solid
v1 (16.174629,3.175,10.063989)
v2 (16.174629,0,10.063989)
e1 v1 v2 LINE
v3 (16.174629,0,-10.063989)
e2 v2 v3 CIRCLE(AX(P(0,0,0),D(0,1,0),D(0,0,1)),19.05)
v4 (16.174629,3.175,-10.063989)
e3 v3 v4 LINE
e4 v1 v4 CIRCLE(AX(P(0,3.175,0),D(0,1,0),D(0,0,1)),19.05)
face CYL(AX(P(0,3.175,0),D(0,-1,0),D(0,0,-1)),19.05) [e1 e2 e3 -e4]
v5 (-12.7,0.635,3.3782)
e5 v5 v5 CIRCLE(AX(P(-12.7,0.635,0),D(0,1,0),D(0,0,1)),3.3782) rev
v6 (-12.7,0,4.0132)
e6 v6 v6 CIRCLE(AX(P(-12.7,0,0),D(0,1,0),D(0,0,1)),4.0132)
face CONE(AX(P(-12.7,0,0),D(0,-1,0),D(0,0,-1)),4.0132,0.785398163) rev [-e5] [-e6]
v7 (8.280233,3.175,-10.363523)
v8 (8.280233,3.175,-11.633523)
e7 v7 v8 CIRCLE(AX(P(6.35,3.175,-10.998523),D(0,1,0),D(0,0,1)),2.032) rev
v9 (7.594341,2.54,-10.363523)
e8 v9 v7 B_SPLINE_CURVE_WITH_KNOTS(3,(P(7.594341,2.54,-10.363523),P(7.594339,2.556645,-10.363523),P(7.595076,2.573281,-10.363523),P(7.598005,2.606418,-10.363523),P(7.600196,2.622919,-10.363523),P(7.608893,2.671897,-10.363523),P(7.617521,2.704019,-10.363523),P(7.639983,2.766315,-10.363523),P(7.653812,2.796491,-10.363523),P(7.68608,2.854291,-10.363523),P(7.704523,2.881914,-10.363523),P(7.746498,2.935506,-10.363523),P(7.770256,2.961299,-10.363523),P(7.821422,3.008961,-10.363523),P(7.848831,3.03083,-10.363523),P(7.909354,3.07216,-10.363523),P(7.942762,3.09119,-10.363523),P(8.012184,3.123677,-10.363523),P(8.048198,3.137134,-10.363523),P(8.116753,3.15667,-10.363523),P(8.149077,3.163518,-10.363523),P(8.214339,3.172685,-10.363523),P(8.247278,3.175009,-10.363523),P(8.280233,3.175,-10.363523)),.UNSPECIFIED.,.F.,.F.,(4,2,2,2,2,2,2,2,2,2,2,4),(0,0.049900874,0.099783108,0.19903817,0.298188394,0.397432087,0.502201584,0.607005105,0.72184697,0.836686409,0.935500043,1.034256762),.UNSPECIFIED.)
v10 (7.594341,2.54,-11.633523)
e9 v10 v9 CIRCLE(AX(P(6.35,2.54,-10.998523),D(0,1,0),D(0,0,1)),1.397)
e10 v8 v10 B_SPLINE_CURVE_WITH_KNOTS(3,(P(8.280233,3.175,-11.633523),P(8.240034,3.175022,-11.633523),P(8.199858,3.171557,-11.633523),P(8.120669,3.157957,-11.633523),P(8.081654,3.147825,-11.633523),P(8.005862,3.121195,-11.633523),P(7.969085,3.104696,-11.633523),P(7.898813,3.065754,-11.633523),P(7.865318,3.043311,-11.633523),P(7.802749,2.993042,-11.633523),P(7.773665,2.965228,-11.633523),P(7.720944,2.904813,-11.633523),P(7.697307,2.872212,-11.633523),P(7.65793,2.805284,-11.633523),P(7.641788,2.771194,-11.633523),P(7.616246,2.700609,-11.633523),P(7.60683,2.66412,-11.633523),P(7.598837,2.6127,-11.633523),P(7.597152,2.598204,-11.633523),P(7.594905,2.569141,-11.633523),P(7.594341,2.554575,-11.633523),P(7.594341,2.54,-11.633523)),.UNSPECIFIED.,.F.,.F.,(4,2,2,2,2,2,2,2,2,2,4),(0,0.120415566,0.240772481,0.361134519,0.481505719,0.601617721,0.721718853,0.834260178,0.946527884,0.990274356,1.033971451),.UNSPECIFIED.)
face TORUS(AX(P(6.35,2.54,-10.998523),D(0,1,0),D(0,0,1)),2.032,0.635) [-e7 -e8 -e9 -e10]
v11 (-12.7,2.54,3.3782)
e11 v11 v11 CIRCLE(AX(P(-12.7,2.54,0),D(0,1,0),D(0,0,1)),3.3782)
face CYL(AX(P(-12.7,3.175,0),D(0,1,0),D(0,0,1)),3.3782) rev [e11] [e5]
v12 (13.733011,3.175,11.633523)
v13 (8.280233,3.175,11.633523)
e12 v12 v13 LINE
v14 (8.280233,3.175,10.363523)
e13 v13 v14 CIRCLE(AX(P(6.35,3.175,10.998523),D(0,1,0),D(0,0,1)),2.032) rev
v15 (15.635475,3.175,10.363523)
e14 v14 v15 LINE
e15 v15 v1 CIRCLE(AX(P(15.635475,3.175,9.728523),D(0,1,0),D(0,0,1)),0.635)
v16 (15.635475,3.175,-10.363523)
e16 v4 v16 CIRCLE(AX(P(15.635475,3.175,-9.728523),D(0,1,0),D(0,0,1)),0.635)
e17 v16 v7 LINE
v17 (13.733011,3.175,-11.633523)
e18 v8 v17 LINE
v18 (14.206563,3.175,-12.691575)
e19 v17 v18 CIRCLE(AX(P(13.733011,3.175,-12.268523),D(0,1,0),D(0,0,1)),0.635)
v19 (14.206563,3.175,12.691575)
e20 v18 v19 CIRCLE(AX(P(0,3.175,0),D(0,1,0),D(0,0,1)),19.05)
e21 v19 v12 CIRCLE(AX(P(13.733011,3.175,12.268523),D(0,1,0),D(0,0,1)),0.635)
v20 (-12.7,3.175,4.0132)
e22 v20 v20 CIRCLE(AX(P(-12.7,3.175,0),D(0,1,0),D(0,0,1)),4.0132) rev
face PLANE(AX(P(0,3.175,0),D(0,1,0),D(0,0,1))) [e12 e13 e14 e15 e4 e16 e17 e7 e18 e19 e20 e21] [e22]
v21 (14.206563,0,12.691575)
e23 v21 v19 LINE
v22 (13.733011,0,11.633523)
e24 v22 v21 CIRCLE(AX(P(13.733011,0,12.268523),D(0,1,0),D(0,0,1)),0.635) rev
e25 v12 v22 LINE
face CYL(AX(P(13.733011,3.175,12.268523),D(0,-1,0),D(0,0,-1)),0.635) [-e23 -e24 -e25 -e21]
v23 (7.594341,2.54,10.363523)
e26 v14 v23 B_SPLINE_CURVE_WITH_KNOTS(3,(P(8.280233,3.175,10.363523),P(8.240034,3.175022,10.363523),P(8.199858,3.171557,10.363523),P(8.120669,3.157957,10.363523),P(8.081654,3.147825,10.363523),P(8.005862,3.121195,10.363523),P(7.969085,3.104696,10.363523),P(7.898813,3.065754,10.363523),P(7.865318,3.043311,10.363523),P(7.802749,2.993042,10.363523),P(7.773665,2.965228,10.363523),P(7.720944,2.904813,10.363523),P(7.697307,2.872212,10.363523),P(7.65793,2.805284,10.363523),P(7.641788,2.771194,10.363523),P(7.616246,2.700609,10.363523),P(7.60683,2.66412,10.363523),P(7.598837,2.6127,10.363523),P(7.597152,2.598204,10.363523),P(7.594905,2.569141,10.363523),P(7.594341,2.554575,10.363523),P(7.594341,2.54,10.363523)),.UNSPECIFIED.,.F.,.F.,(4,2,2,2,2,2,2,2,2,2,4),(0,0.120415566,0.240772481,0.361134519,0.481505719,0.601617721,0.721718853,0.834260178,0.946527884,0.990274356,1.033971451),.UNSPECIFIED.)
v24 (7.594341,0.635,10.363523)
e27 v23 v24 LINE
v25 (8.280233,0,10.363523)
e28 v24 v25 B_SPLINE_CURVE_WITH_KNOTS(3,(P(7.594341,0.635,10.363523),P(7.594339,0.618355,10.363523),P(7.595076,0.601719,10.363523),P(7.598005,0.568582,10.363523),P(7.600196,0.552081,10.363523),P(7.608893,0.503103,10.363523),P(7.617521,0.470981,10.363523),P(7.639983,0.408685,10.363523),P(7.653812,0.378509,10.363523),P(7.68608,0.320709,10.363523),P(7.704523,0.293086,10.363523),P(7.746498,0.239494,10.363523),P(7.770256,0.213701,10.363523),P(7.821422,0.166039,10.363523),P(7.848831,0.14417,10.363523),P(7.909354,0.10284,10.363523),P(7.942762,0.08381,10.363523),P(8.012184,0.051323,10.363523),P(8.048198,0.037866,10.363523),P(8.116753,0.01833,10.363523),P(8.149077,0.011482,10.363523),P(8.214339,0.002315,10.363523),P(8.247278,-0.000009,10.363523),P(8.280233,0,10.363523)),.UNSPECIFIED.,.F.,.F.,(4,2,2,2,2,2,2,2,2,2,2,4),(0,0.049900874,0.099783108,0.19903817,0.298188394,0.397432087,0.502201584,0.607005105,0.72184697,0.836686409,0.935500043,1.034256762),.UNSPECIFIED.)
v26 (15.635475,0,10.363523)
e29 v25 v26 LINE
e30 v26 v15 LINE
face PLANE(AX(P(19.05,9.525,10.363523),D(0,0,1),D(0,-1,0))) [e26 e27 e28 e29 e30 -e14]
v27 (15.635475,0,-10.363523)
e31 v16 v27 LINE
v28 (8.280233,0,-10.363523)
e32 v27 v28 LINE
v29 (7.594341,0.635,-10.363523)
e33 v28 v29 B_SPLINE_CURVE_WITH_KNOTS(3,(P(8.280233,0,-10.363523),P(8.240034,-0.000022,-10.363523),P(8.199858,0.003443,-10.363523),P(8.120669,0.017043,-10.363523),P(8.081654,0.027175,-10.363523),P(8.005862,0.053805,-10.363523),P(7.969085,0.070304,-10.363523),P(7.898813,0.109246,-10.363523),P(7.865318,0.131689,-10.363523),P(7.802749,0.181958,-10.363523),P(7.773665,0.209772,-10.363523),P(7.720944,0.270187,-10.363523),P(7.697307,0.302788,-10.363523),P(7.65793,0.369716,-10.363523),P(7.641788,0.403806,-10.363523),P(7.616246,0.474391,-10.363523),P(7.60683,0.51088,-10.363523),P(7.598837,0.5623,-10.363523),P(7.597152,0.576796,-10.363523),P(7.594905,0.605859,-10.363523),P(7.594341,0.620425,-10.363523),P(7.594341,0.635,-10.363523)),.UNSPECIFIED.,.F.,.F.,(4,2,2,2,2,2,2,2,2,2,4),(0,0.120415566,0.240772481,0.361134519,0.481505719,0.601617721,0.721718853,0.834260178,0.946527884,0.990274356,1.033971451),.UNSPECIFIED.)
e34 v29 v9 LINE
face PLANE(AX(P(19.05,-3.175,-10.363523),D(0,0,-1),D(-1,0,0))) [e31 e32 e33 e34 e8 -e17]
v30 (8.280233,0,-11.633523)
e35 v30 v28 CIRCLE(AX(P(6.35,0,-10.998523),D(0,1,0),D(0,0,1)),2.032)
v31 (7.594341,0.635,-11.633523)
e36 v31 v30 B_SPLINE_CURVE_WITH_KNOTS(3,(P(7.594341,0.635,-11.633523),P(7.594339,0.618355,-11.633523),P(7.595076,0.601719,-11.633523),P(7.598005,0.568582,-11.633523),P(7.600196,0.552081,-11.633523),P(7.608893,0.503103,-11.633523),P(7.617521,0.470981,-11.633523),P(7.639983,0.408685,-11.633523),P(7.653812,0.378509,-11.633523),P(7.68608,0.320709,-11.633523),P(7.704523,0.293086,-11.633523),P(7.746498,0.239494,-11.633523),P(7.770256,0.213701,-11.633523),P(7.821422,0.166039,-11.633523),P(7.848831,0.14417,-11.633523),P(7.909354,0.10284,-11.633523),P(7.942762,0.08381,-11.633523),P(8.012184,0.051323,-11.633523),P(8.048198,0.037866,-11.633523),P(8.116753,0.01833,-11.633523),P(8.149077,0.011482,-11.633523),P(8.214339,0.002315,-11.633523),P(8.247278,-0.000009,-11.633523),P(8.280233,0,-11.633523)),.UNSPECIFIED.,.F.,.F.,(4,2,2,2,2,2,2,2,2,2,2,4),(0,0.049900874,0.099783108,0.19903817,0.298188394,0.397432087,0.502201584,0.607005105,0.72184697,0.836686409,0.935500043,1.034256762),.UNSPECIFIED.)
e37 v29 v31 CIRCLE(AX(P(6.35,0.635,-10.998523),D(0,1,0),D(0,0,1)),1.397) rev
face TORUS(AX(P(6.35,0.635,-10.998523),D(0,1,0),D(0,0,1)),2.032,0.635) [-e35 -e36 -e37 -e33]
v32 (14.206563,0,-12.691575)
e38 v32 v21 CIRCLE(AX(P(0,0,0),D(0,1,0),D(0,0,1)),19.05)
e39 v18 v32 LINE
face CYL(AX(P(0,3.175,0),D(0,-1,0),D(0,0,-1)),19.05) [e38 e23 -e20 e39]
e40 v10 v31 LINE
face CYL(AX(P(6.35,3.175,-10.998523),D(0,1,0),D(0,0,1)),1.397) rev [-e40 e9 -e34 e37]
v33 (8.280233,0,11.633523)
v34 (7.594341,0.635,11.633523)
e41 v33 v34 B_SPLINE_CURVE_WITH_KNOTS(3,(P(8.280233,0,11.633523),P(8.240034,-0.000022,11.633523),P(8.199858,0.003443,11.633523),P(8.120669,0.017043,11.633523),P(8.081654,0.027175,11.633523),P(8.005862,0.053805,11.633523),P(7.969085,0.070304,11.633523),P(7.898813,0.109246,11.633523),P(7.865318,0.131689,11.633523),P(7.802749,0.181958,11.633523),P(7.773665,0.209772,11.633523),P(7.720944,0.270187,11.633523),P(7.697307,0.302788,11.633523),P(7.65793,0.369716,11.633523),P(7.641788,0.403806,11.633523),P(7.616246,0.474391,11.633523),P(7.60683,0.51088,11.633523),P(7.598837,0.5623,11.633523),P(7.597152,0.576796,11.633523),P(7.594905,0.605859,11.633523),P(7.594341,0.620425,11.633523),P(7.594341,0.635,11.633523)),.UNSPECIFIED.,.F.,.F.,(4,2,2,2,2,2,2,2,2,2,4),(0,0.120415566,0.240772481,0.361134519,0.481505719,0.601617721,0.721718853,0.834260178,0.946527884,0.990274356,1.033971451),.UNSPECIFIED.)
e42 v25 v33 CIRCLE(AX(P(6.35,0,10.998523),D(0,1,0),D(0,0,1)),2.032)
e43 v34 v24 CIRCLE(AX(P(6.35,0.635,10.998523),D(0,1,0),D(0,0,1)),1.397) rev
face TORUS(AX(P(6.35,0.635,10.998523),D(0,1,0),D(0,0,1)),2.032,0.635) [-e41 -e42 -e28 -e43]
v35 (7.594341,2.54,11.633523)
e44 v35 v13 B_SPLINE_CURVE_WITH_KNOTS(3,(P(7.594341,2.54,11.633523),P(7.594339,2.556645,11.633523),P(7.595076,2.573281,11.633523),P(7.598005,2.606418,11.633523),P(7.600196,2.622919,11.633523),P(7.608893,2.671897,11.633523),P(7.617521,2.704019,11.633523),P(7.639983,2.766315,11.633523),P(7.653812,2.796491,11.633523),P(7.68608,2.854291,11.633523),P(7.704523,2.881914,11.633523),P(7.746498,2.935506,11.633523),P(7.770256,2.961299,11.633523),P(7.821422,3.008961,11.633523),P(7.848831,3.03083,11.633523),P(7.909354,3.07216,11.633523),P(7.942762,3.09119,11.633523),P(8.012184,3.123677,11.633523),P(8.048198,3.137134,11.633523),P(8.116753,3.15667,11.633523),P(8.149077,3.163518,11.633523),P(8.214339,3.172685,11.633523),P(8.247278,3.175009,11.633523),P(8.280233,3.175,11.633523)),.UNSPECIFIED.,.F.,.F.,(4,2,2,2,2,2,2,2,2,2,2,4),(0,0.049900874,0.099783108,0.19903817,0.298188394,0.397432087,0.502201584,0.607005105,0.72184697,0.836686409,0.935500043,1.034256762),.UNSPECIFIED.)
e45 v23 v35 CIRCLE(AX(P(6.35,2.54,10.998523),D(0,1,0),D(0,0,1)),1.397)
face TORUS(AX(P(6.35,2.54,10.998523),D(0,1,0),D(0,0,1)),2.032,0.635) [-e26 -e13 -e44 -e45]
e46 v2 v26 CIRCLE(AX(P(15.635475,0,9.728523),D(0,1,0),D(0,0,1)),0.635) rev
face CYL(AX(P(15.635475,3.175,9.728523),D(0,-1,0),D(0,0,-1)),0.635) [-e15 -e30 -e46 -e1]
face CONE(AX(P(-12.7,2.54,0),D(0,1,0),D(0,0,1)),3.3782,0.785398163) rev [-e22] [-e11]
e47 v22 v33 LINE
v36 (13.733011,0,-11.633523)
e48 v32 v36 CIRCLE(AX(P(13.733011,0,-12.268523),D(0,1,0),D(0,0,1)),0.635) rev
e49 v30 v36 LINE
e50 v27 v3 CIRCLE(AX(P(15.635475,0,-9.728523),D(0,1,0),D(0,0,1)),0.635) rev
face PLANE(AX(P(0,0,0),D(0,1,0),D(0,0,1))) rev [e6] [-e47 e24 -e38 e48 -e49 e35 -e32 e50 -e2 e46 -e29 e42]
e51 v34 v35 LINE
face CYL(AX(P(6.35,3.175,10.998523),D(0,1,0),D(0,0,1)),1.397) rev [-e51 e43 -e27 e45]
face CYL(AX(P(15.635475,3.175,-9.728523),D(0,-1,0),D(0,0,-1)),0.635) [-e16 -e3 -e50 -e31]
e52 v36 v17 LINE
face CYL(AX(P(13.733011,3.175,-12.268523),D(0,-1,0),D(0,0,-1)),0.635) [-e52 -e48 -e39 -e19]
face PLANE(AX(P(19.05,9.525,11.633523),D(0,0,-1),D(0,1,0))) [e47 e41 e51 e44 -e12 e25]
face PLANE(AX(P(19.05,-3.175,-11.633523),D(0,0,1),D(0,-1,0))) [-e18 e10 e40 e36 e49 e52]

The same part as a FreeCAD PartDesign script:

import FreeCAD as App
import Part
import Sketcher

V = App.Vector
Q = App.Units.Quantity


def edges_at(feature, points):
    """Names of the edges that pass closest to the given points."""
    edges = feature.Shape.Edges
    near = lambda p: min(range(len(edges)), key=lambda i: edges[i].distToShape(Part.Vertex(*p))[0])
    return sorted({f"Edge{near(p) + 1}" for p in points})

doc = App.newDocument("Part")
params = doc.addObject("Spreadsheet::Sheet", "Params")
for row, (alias, value) in enumerate([
    ("sketch1_diameter", "1.5 in"),
    ("pad1_length", "0.125 in"),
    ("sketch2_diameter", "0.266 in"),
    ("hole_diameter", "0.266 in"),
    ("sketch3_diameter", "0.11 in"),
    ("hole2_diameter", "0.11 in"),
    ("sketch4_diameter", "0.11 in"),
    ("hole3_diameter", "0.11 in"),
    ("chamfer_size", "0.025 in"),
    ("sketch5_width", "0.5 in"),
    ("sketch5_height", "0.05 in"),
    ("fillet_radius", "0.025 in"),
], start=1):
    params.set(f"A{row}", alias)
    params.set(f"B{row}", "=" + value)
    params.setAlias(f"B{row}", alias)

body = doc.addObject("PartDesign::Body", "Body")

# Sketch on XZ plane
sketch1 = body.newObject("Sketcher::SketchObject", "Sketch")
sketch1.AttachmentSupport = (doc.getObject("XZ_Plane"), [""])
sketch1.MapMode = "FlatFace"
sketch1.addGeometry(Part.Circle(V(0, 0, 0), V(0, 0, 1), 19.05), False)
sketch1.addConstraint([
    Sketcher.Constraint("Coincident", 0, 3, -1, 1),
    Sketcher.Constraint("Diameter", 0, Q("1.5 in")),
])
sketch1.setExpression("Constraints[1]", "Params.sketch1_diameter")
pad1 = body.newObject("PartDesign::Pad", "Pad")
pad1.Profile = sketch1
pad1.setExpression("Length", "Params.pad1_length")
pad1.Reversed = True

# Sketch on XZ plane
sketch2 = body.newObject("Sketcher::SketchObject", "Sketch001")
sketch2.AttachmentSupport = (doc.getObject("XZ_Plane"), [""])
sketch2.MapMode = "FlatFace"
sketch2.AttachmentOffset = App.Placement(V(0, 0, -0.125 * 25.4), App.Rotation())
sketch2.addGeometry(Part.Circle(V(-12.7, 0, 0), V(0, 0, 1), 3.3782), False)
sketch2.addConstraint([
    Sketcher.Constraint("PointOnObject", 0, 3, -1),
    Sketcher.Constraint("Diameter", 0, Q("0.266 in")),
    Sketcher.Constraint("DistanceX", 0, 3, -1, 1, Q("0.5 in")),
])
sketch2.setExpression("Constraints[1]", "Params.sketch2_diameter")
doc.recompute()
hole = body.newObject("PartDesign::Hole", "Hole")
hole.Profile = sketch2
hole.ThreadType = "None"
hole.setExpression("Diameter", "Params.hole_diameter")
hole.DepthType = "ThroughAll"
hole.Reversed = True

# Sketch on XZ plane
sketch3 = body.newObject("Sketcher::SketchObject", "Sketch002")
sketch3.AttachmentSupport = (doc.getObject("XZ_Plane"), [""])
sketch3.MapMode = "FlatFace"
sketch3.AttachmentOffset = App.Placement(V(0, 0, -0.125 * 25.4), App.Rotation())
sketch3.addGeometry(Part.Circle(V(6.35, -10.998523, 0), V(0, 0, 1), 1.397), False)
sketch3.addConstraint([
    Sketcher.Constraint("Diameter", 0, Q("0.11 in")),
    Sketcher.Constraint("DistanceX", -1, 1, 0, 3, Q("0.25 in")),
    Sketcher.Constraint("DistanceY", 0, 3, -1, 1, 10.998523),
])
sketch3.setExpression("Constraints[0]", "Params.sketch3_diameter")
doc.recompute()
hole2 = body.newObject("PartDesign::Hole", "Hole001")
hole2.Profile = sketch3
hole2.ThreadType = "None"
hole2.setExpression("Diameter", "Params.hole2_diameter")
hole2.DepthType = "ThroughAll"
hole2.Reversed = True

# Sketch on XZ plane
sketch4 = body.newObject("Sketcher::SketchObject", "Sketch003")
sketch4.AttachmentSupport = (doc.getObject("XZ_Plane"), [""])
sketch4.MapMode = "FlatFace"
sketch4.AttachmentOffset = App.Placement(V(0, 0, -0.125 * 25.4), App.Rotation())
sketch4.addGeometry(Part.Circle(V(6.35, 10.998523, 0), V(0, 0, 1), 1.397), False)
sketch4.addConstraint([
    Sketcher.Constraint("Diameter", 0, Q("0.11 in")),
    Sketcher.Constraint("DistanceX", -1, 1, 0, 3, Q("0.25 in")),
    Sketcher.Constraint("DistanceY", -1, 1, 0, 3, 10.998523),
])
sketch4.setExpression("Constraints[0]", "Params.sketch4_diameter")
doc.recompute()
hole3 = body.newObject("PartDesign::Hole", "Hole002")
hole3.Profile = sketch4
hole3.ThreadType = "None"
hole3.setExpression("Diameter", "Params.hole3_diameter")
hole3.DepthType = "ThroughAll"
hole3.Reversed = True
doc.recompute()

chamfer = body.newObject("PartDesign::Chamfer", "Chamfer")
chamfer.Base = (hole3, edges_at(hole3, [(-9.322, 3.175, 0), (-9.322, 0, 0)]))
chamfer.setExpression("Size", "Params.chamfer_size")

# Sketch on YZ plane
sketch5 = body.newObject("Sketcher::SketchObject", "Sketch004")
sketch5.AttachmentSupport = (doc.getObject("YZ_Plane"), [""])
sketch5.MapMode = "FlatFace"
sketch5.AttachmentOffset = App.Placement(V(0, 0, 0.25 * 25.4), App.Rotation())
sketch5.addGeometry([
    Part.LineSegment(V(-3.175, 10.363523, 0), V(9.525, 10.363523, 0)),  # 0
    Part.LineSegment(V(9.525, 10.363523, 0), V(9.525, 11.633523, 0)),  # 1
    Part.LineSegment(V(9.525, 11.633523, 0), V(-3.175, 11.633523, 0)),  # 2
    Part.LineSegment(V(-3.175, 11.633523, 0), V(-3.175, 10.363523, 0)),  # 3
    Part.LineSegment(V(-3.175, -11.633523, 0), V(9.525, -11.633523, 0)),  # 4
    Part.LineSegment(V(9.525, -11.633523, 0), V(9.525, -10.363523, 0)),  # 5
    Part.LineSegment(V(9.525, -10.363523, 0), V(-3.175, -10.363523, 0)),  # 6
    Part.LineSegment(V(-3.175, -10.363523, 0), V(-3.175, -11.633523, 0)),  # 7
], False)
sketch5.addConstraint([
    Sketcher.Constraint("Coincident", 0, 2, 1, 1),
    Sketcher.Constraint("Coincident", 1, 2, 2, 1),
    Sketcher.Constraint("Coincident", 2, 2, 3, 1),
    Sketcher.Constraint("Coincident", 3, 2, 0, 1),
    Sketcher.Constraint("Coincident", 4, 2, 5, 1),
    Sketcher.Constraint("Coincident", 5, 2, 6, 1),
    Sketcher.Constraint("Coincident", 6, 2, 7, 1),
    Sketcher.Constraint("Coincident", 7, 2, 4, 1),
    Sketcher.Constraint("Horizontal", 0),
    Sketcher.Constraint("Vertical", 1),
    Sketcher.Constraint("Horizontal", 2),
    Sketcher.Constraint("Vertical", 3),
    Sketcher.Constraint("Horizontal", 4),
    Sketcher.Constraint("Vertical", 5),
    Sketcher.Constraint("Horizontal", 6),
    Sketcher.Constraint("Vertical", 7),
    Sketcher.Constraint("Symmetric", 1, 2, 4, 2, -1),
    Sketcher.Constraint("Symmetric", 3, 2, 6, 2, -1),
    Sketcher.Constraint("DistanceX", 0, 1, 0, 2, Q("0.5 in")),
    Sketcher.Constraint("DistanceY", 1, 1, 1, 2, Q("0.05 in")),
    Sketcher.Constraint("DistanceX", -1, 1, 0, 2, Q("0.375 in")),
    Sketcher.Constraint("DistanceY", -1, 1, 0, 2, 10.363523),
])
sketch5.setExpression("Constraints[18]", "Params.sketch5_width")
sketch5.setExpression("Constraints[19]", "Params.sketch5_height")
pocket1 = body.newObject("PartDesign::Pocket", "Pocket")
pocket1.Profile = sketch5
pocket1.Type = "ThroughAll"
pocket1.Reversed = True
doc.recompute()

fillet = body.newObject("PartDesign::Fillet", "Fillet")
fillet.Base = (pocket1, edges_at(pocket1, [
    (4.953, 0, 10.999),
    (4.953, 3.175, 10.999),
    (4.953, 0, -10.999),
    (4.953, 3.175, -10.999),
    (15.984, 1.587, 10.364),
    (15.085, 1.587, 11.634),
    (15.984, 1.587, -10.364),
    (15.085, 1.587, -11.634),
]))
fillet.setExpression("Radius", "Params.fillet_radius")

doc.recompute()
